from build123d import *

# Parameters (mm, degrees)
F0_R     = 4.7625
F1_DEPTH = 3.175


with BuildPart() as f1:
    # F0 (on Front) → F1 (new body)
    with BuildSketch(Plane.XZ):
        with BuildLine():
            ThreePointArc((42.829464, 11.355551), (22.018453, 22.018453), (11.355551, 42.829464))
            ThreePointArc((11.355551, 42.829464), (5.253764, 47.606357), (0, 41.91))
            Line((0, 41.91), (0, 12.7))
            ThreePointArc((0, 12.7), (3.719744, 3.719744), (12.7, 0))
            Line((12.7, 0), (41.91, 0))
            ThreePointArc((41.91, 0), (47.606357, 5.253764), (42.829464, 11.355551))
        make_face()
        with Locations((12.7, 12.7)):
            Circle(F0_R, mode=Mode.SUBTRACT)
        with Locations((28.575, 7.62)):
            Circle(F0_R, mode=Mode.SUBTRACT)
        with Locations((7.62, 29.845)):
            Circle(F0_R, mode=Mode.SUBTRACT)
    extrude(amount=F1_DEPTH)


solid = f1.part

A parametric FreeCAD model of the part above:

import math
import FreeCAD as App
import Part
import Sketcher
from FreeCAD import Vector
Q = App.Units.Quantity

doc = App.newDocument("Part")
body = doc.addObject("PartDesign::Body", "Body")

# Sketch on XZ plane
sketch1 = body.newObject("Sketcher::SketchObject", "Sketch")
sketch1.AttachmentSupport = (doc.getObject("XZ_Plane"), [""])
sketch1.MapMode = "FlatFace"
sketch1.addGeometry([
    Part.ArcOfCircle(Part.Circle(Vector(49, 49, 0), Vector(0, 0, 1), 38.1), math.radians(-171), math.radians(-99)),  # 0
    Part.ArcOfCircle(Part.Circle(Vector(5.7, 41.9, 0), Vector(0, 0, 1), 5.7), math.radians(9), math.radians(180)),  # 1
    Part.LineSegment(Vector(0, 41.9, 0), Vector(0, 12.7, 0)),  # 2
    Part.ArcOfCircle(Part.Circle(Vector(12.7, 12.7, 0), Vector(0, 0, 1), 12.7), math.radians(-180), math.radians(-90)),  # 3
    Part.LineSegment(Vector(12.7, 0, 0), Vector(41.9, 0, 0)),  # 4
    Part.ArcOfCircle(Part.Circle(Vector(41.9, 5.7, 0), Vector(0, 0, 1), 5.7), math.radians(-90), math.radians(81)),  # 5
    Part.Circle(Vector(12.7, 12.7, 0), Vector(0, 0, 1), 4.8),  # 6
    Part.Circle(Vector(28.6, 7.6, 0), Vector(0, 0, 1), 4.8),  # 7
    Part.Circle(Vector(7.6, 29.8, 0), Vector(0, 0, 1), 4.8),  # 8
], False)
sketch1.addConstraint([
    Sketcher.Constraint("Tangent", 0, 1, 1, 1),
    Sketcher.Constraint("Tangent", 1, 2, 2, 1),
    Sketcher.Constraint("Tangent", 2, 2, 3, 1),
    Sketcher.Constraint("Tangent", 3, 2, 4, 1),
    Sketcher.Constraint("Tangent", 4, 2, 5, 1),
    Sketcher.Constraint("Tangent", 5, 2, 0, 2),
    Sketcher.Constraint("Vertical", 2),
    Sketcher.Constraint("Horizontal", 4),
    Sketcher.Constraint("Coincident", 6, 3, 3, 3),
    Sketcher.Constraint("Equal", 1, 5),
    Sketcher.Constraint("Equal", 6, 7),
    Sketcher.Constraint("Equal", 7, 8),
    Sketcher.Constraint("PointOnObject", 1, 2, -2),
    Sketcher.Constraint("PointOnObject", 3, 2, -1),
    Sketcher.Constraint("Equal", 4, 2),
    Sketcher.Constraint("Radius", 0, Q("1.4999999 in")),
    Sketcher.Constraint("Radius", 3, Q("0.5 in")),
    Sketcher.Constraint("Diameter", 6, Q("0.375 in")),
    Sketcher.Constraint("Radius", 1, Q("0.225 in")),
    Sketcher.Constraint("DistanceX", 4, 1, 4, 2, Q("1.15 in")),
    Sketcher.Constraint("DistanceY", -1, 1, 7, 3, Q("0.3 in")),
    Sketcher.Constraint("DistanceX", -1, 1, 8, 3, Q("0.3 in")),
    Sketcher.Constraint("DistanceX", 1, 3, 7, 3, Q("0.9 in")),
    Sketcher.Constraint("DistanceY", 5, 3, 8, 3, Q("0.95 in")),
])
pad1 = body.newObject("PartDesign::Pad", "Pad")
pad1.Profile = sketch1
pad1.Length = Q("0.125 in")

doc.recompute()
